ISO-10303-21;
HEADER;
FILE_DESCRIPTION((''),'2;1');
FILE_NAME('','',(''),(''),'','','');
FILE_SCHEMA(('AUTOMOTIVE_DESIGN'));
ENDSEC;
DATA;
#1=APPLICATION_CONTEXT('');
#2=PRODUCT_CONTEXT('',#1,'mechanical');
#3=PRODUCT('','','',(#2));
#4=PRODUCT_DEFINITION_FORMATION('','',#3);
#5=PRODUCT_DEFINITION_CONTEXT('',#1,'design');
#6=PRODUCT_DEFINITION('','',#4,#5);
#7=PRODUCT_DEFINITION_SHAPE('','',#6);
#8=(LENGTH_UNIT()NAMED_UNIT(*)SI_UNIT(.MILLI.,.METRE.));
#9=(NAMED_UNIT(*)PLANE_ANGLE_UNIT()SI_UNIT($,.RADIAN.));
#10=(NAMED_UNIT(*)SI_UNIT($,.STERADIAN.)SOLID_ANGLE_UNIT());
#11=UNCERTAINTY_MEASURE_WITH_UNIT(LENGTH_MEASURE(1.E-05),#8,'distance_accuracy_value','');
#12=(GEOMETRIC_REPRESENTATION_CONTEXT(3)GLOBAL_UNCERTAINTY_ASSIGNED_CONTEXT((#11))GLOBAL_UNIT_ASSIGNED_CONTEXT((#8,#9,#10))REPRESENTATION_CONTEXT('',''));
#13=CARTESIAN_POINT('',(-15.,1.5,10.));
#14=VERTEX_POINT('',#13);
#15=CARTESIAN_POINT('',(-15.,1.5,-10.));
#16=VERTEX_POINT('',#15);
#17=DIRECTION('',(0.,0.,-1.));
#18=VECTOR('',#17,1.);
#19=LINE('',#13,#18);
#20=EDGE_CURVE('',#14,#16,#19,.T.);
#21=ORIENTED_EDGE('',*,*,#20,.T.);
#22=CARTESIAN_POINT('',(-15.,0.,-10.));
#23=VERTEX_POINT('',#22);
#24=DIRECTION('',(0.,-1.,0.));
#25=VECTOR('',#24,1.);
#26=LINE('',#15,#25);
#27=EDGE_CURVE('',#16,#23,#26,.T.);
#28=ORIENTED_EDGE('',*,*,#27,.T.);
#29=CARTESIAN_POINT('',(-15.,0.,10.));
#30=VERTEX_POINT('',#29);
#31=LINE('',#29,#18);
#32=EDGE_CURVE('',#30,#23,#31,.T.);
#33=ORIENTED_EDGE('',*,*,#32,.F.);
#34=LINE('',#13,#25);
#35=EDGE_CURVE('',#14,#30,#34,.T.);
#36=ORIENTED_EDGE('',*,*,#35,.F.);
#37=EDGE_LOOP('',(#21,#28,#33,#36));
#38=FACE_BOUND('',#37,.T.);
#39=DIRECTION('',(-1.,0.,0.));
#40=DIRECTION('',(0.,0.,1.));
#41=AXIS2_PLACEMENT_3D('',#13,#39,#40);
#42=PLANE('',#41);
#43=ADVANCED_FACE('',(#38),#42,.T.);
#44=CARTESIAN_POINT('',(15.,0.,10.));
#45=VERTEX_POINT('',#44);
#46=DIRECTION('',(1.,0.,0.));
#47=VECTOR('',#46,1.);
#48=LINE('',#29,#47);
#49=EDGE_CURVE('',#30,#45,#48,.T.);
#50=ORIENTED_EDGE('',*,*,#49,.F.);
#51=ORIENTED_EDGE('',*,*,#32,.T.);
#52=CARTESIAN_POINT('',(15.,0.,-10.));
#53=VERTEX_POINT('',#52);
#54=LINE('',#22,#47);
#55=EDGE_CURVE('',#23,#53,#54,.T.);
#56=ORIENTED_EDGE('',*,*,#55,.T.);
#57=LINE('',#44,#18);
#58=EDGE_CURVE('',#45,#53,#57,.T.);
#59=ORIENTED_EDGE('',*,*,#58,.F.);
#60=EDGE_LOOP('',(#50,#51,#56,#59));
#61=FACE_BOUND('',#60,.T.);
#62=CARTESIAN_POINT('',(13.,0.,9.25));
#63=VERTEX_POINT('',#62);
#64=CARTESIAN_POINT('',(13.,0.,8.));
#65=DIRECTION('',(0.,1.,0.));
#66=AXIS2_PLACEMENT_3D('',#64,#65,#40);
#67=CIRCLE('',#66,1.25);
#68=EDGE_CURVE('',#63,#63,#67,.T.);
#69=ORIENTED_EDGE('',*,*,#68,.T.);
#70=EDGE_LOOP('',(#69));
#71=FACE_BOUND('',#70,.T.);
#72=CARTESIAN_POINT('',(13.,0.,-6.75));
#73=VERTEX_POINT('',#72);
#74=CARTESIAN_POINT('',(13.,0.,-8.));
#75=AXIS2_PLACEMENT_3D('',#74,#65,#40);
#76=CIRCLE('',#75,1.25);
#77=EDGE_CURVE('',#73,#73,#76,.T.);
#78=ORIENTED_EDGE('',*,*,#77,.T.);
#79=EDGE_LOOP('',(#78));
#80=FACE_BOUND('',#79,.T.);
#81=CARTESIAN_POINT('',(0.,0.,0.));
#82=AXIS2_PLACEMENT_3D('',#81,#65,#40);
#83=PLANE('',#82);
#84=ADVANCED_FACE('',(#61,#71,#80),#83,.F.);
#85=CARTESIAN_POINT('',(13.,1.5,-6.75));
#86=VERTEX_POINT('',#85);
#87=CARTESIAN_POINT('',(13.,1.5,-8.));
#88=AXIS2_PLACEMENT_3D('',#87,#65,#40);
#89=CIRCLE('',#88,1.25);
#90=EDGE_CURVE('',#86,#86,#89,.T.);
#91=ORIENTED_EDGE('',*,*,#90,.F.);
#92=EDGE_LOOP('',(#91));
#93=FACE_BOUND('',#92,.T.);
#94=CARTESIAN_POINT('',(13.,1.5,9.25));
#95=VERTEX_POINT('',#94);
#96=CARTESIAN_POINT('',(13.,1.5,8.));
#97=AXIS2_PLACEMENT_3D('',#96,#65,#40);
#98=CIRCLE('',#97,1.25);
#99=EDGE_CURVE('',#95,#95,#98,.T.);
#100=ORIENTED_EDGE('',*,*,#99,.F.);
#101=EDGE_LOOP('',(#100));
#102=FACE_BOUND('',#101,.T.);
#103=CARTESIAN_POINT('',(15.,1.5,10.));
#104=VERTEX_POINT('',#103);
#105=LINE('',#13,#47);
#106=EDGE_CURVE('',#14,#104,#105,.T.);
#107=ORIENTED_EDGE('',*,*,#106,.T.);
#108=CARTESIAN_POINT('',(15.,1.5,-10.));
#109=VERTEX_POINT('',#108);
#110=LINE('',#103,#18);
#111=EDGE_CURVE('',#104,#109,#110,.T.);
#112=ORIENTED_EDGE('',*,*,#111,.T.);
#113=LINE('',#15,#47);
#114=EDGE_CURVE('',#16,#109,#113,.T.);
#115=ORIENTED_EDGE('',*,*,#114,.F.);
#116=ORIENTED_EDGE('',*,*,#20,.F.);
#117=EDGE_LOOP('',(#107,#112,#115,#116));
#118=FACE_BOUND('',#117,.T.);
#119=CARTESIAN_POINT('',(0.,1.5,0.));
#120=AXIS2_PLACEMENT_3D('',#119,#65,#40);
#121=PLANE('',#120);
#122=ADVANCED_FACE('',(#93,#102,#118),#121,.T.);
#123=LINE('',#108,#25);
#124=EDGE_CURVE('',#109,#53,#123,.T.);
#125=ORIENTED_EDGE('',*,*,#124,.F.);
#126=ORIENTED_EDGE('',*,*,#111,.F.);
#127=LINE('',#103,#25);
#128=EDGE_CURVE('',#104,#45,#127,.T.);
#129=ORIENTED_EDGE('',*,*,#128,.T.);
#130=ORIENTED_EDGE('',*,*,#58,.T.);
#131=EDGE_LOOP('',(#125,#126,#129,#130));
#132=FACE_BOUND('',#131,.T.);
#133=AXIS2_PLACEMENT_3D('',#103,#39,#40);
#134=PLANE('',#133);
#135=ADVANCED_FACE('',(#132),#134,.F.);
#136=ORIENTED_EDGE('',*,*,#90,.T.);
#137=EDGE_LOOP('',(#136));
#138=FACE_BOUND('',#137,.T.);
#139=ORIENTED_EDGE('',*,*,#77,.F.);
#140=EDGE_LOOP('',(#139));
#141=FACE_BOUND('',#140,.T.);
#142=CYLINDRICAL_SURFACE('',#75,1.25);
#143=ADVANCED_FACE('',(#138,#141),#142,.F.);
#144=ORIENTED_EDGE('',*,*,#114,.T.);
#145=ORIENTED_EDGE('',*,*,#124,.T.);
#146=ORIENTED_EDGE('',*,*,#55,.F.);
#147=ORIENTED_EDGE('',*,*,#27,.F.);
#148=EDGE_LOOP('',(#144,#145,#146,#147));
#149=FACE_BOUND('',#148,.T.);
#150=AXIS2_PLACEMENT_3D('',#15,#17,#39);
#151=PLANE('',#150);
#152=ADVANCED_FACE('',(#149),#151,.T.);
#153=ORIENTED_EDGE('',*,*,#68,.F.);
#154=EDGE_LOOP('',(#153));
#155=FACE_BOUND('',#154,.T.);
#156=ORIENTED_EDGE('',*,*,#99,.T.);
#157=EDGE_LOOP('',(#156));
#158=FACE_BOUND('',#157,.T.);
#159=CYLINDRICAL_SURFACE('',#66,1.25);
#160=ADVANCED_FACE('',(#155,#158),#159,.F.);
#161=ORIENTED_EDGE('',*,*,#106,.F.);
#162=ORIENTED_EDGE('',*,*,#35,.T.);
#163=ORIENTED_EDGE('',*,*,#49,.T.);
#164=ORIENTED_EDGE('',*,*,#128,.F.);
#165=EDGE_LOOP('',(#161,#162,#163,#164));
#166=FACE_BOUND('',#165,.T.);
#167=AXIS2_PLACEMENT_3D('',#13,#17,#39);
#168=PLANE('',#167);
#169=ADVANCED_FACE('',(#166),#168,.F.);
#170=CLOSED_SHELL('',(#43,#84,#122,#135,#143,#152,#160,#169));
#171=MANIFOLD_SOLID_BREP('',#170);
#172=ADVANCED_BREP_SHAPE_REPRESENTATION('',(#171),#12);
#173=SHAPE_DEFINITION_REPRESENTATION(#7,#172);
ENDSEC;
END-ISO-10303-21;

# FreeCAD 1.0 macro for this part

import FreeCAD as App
import Part
import Sketcher
from FreeCAD import Vector
Q = App.Units.Quantity


def add_polygon(sketch, points):
    """Adds a closed chain of lines whose ends are joined by coincident constraints."""
    first, n = sketch.GeometryCount, len(points)
    for a, b in zip(points, points[1:] + points[:1]):
        sketch.addGeometry(Part.LineSegment(App.Vector(*a, 0), App.Vector(*b, 0)), False)
    for i in range(n):
        sketch.addConstraint(Sketcher.Constraint("Coincident", first + i, 2, first + (i + 1) % n, 1))

doc = App.newDocument("Part")
body = doc.addObject("PartDesign::Body", "Body")

# Sketch on XZ plane
sketch1 = body.newObject("Sketcher::SketchObject", "Sketch")
sketch1.AttachmentSupport = (doc.getObject("XZ_Plane"), [""])
sketch1.MapMode = "FlatFace"
add_polygon(sketch1, [(-15, -10), (-15, 10), (15, 10), (15, -10)])  # lines 0-3
sketch1.addConstraint([
    Sketcher.Constraint("Vertical", 0),
    Sketcher.Constraint("Horizontal", 1),
    Sketcher.Constraint("Vertical", 2),
    Sketcher.Constraint("Horizontal", 3),
    Sketcher.Constraint("Symmetric", 0, 2, 2, 2, -1, 1),
    Sketcher.Constraint("DistanceX", 1, 1, 1, 2, Q("30 mm")),
    Sketcher.Constraint("DistanceY", 0, 1, 0, 2, Q("20 mm")),
])
pad1 = body.newObject("PartDesign::Pad", "Pad")
pad1.Profile = sketch1
pad1.Length = 1.5
pad1.Reversed = True

# Sketch on XZ plane
sketch2 = body.newObject("Sketcher::SketchObject", "Sketch001")
sketch2.AttachmentSupport = (doc.getObject("XZ_Plane"), [""])
sketch2.MapMode = "FlatFace"
sketch2.AttachmentOffset = App.Placement(Vector(0, 0, -1.5), App.Rotation())
sketch2.addGeometry([
    Part.Circle(Vector(13, -8, 0), Vector(0, 0, 1), 1.25),
    Part.Circle(Vector(13, 8, 0), Vector(0, 0, 1), 1.25),
], False)
sketch2.addConstraint([
    Sketcher.Constraint("Equal", 0, 1),
    Sketcher.Constraint("Symmetric", 0, 3, 1, 3, -1),
    Sketcher.Constraint("Diameter", 0, Q("2.5 mm")),
    Sketcher.Constraint("DistanceX", -1, 1, 0, 3, Q("13 mm")),
    Sketcher.Constraint("DistanceY", 0, 3, -1, 1, Q("8 mm")),
])
pocket1 = body.newObject("PartDesign::Pocket", "Pocket")
pocket1.Profile = sketch2
pocket1.Type = "ThroughAll"
pocket1.Reversed = True

doc.recompute()
